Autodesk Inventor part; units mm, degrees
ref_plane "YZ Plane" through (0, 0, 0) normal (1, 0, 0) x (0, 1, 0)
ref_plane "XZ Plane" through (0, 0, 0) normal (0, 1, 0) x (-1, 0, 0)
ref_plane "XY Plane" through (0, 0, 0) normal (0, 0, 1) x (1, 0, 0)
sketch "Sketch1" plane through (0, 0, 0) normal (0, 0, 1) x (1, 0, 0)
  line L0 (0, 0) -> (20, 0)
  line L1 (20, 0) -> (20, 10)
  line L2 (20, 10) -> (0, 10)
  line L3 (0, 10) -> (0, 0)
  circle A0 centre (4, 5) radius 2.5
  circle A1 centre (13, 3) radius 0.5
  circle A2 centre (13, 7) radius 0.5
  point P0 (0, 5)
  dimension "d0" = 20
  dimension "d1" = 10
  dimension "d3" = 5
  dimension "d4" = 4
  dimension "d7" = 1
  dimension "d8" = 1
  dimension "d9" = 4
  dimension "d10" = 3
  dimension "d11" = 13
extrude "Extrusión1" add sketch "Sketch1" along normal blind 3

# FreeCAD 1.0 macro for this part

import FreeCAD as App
import Part
import Sketcher

V = App.Vector
Q = App.Units.Quantity

doc = App.newDocument("Part")
body = doc.addObject("PartDesign::Body", "Body")

sketch1 = doc.addObject("Sketcher::SketchObject", "Sketch")
body.addObject(sketch1)
sketch1.AttachmentSupport = (doc.XY_Plane, [""])
sketch1.MapMode = "FlatFace"
sketch1.addGeometry(Part.LineSegment(V(0, 10, 0), V(0, 0, 0)), False)
sketch1.addGeometry(Part.LineSegment(V(0, 0, 0), V(20, 0, 0)), False)
sketch1.addGeometry(Part.LineSegment(V(20, 0, 0), V(20, 10, 0)), False)
sketch1.addGeometry(Part.LineSegment(V(20, 10, 0), V(0, 10, 0)), False)
sketch1.addGeometry(Part.Circle(V(13, 3, 0), V(0, 0, 1), 0.5), False)
sketch1.addGeometry(Part.Circle(V(4, 5, 0), V(0, 0, 1), 2.5), False)
sketch1.addGeometry(Part.Circle(V(13, 7, 0), V(0, 0, 1), 0.5), False)
sketch1.addConstraint(Sketcher.Constraint("Coincident", 0, 2, 1, 1))
sketch1.addConstraint(Sketcher.Constraint("Coincident", 1, 2, 2, 1))
sketch1.addConstraint(Sketcher.Constraint("Coincident", 2, 2, 3, 1))
sketch1.addConstraint(Sketcher.Constraint("Coincident", 3, 2, 0, 1))
sketch1.addConstraint(Sketcher.Constraint("Vertical", 0))
sketch1.addConstraint(Sketcher.Constraint("Horizontal", 1))
sketch1.addConstraint(Sketcher.Constraint("Vertical", 2))
sketch1.addConstraint(Sketcher.Constraint("Horizontal", 3))
sketch1.addConstraint(Sketcher.Constraint("Coincident", 0, 2, -1, 1))
sketch1.addConstraint(Sketcher.Constraint("Equal", 4, 6))
sketch1.addConstraint(Sketcher.Constraint("Vertical", 4, 3, 6, 3))
sketch1.addConstraint(Sketcher.Constraint("Diameter", 4, Q("1 mm")))
sketch1.addConstraint(Sketcher.Constraint("Diameter", 5, Q("5 mm")))
sketch1.addConstraint(Sketcher.Constraint("DistanceX", 1, 1, 1, 2, Q("20 mm")))
sketch1.addConstraint(Sketcher.Constraint("DistanceY", 0, 2, 0, 1, Q("10 mm")))
sketch1.addConstraint(Sketcher.Constraint("DistanceX", -1, 1, 4, 3, Q("13 mm")))
sketch1.addConstraint(Sketcher.Constraint("DistanceY", -1, 1, 4, 3, Q("3 mm")))
sketch1.addConstraint(Sketcher.Constraint("DistanceX", -1, 1, 5, 3, Q("4 mm")))
sketch1.addConstraint(Sketcher.Constraint("DistanceY", -1, 1, 5, 3, Q("5 mm")))
sketch1.addConstraint(Sketcher.Constraint("DistanceY", 4, 3, 6, 3, Q("4 mm")))
pad1 = doc.addObject("PartDesign::Pad", "Pad")
body.addObject(pad1)
pad1.Profile = sketch1
pad1.Length = 3

doc.recompute()
